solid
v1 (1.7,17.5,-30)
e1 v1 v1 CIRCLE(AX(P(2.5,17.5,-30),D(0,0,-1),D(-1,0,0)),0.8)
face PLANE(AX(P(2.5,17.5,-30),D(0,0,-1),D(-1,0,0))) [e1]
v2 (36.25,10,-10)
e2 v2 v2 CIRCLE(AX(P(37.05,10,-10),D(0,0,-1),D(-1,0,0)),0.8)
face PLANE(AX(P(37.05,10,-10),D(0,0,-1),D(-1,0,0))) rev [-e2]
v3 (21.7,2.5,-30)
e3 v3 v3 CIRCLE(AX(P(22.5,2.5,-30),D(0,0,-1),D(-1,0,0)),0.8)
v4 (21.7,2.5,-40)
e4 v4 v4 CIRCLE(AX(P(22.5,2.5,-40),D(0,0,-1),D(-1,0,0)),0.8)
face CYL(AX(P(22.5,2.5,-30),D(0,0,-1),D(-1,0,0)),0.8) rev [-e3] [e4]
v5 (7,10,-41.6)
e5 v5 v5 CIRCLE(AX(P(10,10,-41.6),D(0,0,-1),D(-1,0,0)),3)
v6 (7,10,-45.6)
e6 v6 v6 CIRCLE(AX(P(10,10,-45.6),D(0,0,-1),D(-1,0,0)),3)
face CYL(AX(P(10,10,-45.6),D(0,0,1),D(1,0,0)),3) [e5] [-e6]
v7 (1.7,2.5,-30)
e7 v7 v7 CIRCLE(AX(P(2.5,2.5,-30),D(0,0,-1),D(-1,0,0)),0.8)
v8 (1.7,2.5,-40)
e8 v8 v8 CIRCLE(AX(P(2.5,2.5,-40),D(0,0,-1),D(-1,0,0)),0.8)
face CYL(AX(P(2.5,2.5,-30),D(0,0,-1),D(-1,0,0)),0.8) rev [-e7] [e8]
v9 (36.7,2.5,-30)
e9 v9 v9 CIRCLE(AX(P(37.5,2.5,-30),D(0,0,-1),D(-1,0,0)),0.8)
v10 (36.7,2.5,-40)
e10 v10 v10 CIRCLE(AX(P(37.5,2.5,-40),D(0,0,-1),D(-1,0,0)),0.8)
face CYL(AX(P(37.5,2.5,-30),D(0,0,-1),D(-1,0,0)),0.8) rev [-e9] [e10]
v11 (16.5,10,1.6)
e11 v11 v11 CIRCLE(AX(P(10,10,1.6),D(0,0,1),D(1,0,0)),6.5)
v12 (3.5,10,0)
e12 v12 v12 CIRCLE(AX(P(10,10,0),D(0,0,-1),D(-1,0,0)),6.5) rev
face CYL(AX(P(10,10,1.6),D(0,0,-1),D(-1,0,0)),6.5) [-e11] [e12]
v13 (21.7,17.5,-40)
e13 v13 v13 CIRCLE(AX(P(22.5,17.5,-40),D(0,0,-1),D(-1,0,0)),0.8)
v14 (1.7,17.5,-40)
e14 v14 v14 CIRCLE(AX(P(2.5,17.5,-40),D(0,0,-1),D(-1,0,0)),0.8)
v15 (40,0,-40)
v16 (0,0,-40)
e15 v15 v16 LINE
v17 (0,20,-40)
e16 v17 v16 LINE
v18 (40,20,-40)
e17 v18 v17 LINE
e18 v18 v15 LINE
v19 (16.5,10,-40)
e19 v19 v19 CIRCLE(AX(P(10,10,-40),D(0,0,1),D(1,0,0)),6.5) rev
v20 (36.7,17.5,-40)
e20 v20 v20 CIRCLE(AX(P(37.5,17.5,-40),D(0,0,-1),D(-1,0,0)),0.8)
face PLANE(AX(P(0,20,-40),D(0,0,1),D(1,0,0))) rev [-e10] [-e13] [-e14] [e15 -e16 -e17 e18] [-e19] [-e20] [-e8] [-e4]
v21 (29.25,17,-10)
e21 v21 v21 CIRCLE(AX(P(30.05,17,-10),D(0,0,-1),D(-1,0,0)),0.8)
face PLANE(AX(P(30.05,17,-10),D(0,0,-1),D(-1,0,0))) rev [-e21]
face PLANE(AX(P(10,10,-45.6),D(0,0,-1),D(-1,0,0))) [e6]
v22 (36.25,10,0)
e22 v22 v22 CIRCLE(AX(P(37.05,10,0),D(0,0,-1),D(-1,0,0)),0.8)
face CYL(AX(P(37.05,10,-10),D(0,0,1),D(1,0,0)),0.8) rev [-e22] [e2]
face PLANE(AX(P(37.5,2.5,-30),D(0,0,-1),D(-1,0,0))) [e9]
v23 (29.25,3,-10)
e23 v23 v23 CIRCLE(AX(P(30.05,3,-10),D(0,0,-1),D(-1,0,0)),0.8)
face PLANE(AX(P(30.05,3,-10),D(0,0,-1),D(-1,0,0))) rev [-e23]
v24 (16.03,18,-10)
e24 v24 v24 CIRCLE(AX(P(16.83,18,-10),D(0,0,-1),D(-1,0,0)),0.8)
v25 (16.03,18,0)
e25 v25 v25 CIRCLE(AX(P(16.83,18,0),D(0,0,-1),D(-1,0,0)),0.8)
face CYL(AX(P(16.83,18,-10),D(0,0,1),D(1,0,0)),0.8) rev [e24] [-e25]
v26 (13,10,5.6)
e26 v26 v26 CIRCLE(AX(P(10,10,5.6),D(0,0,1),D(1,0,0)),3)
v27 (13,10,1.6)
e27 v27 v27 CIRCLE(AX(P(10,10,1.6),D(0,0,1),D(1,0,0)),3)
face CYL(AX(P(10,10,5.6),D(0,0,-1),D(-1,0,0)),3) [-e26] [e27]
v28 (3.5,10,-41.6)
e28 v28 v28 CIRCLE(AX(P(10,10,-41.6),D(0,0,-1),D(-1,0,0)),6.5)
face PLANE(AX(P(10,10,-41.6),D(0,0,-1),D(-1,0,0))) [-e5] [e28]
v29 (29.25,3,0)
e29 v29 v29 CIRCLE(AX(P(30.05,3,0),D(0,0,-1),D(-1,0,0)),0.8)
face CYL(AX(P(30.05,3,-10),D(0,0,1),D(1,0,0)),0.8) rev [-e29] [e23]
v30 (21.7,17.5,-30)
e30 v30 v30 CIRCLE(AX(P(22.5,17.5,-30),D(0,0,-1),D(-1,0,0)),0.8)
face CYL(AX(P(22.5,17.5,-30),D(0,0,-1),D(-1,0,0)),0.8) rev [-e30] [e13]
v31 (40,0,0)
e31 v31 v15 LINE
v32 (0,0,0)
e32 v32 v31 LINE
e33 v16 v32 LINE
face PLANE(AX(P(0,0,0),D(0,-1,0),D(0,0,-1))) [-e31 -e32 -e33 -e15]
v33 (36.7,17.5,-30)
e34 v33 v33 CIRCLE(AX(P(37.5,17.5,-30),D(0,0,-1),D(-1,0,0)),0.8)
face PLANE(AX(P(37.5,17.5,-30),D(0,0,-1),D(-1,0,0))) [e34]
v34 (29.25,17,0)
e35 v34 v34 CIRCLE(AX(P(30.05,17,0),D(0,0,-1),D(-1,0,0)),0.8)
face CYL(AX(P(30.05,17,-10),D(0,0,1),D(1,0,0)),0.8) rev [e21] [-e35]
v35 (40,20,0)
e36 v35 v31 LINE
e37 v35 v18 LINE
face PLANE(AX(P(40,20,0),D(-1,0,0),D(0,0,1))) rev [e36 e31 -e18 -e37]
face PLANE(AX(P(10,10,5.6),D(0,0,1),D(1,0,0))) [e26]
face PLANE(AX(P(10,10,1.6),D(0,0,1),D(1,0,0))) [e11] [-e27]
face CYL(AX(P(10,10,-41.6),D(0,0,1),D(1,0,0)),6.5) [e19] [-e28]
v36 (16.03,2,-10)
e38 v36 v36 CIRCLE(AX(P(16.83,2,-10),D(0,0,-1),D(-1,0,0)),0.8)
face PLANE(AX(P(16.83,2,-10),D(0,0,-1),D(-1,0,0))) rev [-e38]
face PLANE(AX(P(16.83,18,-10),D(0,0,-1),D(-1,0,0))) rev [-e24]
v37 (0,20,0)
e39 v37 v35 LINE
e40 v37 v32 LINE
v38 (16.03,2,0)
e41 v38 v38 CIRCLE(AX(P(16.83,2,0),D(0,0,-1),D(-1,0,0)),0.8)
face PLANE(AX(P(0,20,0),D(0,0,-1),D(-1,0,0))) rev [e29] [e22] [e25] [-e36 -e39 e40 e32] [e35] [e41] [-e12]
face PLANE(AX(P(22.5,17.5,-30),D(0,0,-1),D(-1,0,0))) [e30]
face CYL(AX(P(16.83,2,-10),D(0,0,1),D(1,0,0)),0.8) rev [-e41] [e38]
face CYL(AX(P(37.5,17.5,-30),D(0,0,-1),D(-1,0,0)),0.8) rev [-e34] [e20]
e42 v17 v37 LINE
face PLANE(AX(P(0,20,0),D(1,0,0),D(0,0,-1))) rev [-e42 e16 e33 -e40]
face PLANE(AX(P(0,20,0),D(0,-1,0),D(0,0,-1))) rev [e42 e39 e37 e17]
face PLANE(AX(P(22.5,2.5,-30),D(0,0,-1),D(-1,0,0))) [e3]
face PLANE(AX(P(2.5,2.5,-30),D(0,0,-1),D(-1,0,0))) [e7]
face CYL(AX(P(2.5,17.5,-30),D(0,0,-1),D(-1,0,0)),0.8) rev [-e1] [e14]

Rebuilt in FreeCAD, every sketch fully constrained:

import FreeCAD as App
import Part
import Sketcher
from FreeCAD import Vector
Q = App.Units.Quantity


def add_polygon(sketch, points):
    """Adds a closed chain of lines whose ends are joined by coincident constraints."""
    first, n = sketch.GeometryCount, len(points)
    for a, b in zip(points, points[1:] + points[:1]):
        sketch.addGeometry(Part.LineSegment(App.Vector(*a, 0), App.Vector(*b, 0)), False)
    for i in range(n):
        sketch.addConstraint(Sketcher.Constraint("Coincident", first + i, 2, first + (i + 1) % n, 1))

doc = App.newDocument("Part")
body = doc.addObject("PartDesign::Body", "Body")

# Sketch on XZ plane
sketch1 = body.newObject("Sketcher::SketchObject", "Sketch")
sketch1.AttachmentSupport = (doc.getObject("XZ_Plane"), [""])
sketch1.MapMode = "FlatFace"
add_polygon(sketch1, [(0, -40), (0, 0), (40, 0), (40, -40)])  # lines 0-3
sketch1.addConstraint(Sketcher.Constraint("Vertical", 0))
sketch1.addConstraint(Sketcher.Constraint("Horizontal", 1))
sketch1.addConstraint(Sketcher.Constraint("Vertical", 2))
sketch1.addConstraint(Sketcher.Constraint("Horizontal", 3))
sketch1.addConstraint(Sketcher.Constraint("Coincident", 0, 2, -1, 1))
sketch1.addConstraint(Sketcher.Constraint("Equal", 3, 0))
sketch1.addConstraint(Sketcher.Constraint("DistanceX", 1, 1, 1, 2, Q("40 mm")))
pad1 = body.newObject("PartDesign::Pad", "Pad")
pad1.Profile = sketch1
pad1.Length = 20
pad1.Reversed = True

# Sketch on XY plane
sketch2 = body.newObject("Sketcher::SketchObject", "Sketch001")
sketch2.AttachmentSupport = (doc.getObject("XY_Plane"), [""])
sketch2.MapMode = "FlatFace"
sketch2.addGeometry(Part.Circle(Vector(30.1, 17, 0), Vector(0, 0, 1), 0.8), False)
sketch2.addGeometry(Part.Circle(Vector(37, 10, 0), Vector(0, 0, 1), 0.8), False)
sketch2.addGeometry(Part.Circle(Vector(30.1, 3, 0), Vector(0, 0, 1), 0.8), False)
sketch2.addGeometry(Part.Circle(Vector(16.8, 18, 0), Vector(0, 0, 1), 0.8), False)
sketch2.addGeometry(Part.Circle(Vector(16.8, 2, 0), Vector(0, 0, 1), 0.8), False)
sketch2.addConstraint(Sketcher.Constraint("Equal", 0, 1))
sketch2.addConstraint(Sketcher.Constraint("Equal", 1, 2))
sketch2.addConstraint(Sketcher.Constraint("Equal", 2, 3))
sketch2.addConstraint(Sketcher.Constraint("Equal", 3, 4))
sketch2.addConstraint(Sketcher.Constraint("Vertical", 0, 3, 2, 3))
sketch2.addConstraint(Sketcher.Constraint("Vertical", 3, 3, 4, 3))
sketch2.addConstraint(Sketcher.Constraint("Diameter", 0, Q("1.6 mm")))
sketch2.addConstraint(Sketcher.Constraint("DistanceY", -1, 1, 0, 3, Q("17 mm")))
sketch2.addConstraint(Sketcher.Constraint("DistanceY", -1, 1, 1, 3, Q("10 mm")))
sketch2.addConstraint(Sketcher.Constraint("DistanceY", -1, 1, 2, 3, Q("3 mm")))
sketch2.addConstraint(Sketcher.Constraint("DistanceY", -1, 1, 3, 3, Q("18 mm")))
sketch2.addConstraint(Sketcher.Constraint("DistanceY", -1, 1, 4, 3, Q("2 mm")))
sketch2.addConstraint(Sketcher.Constraint("DistanceX", 0, 3, 1, 3, Q("7 mm")))
sketch2.addConstraint(Sketcher.Constraint("DistanceX", -1, 1, 0, 3, Q("30.05 mm")))
sketch2.addConstraint(Sketcher.Constraint("DistanceX", -1, 1, 3, 3, Q("16.83 mm")))
pocket1 = body.newObject("PartDesign::Pocket", "Pocket")
pocket1.Profile = sketch2
pocket1.Length = 10

# Sketch on XY plane
sketch3 = body.newObject("Sketcher::SketchObject", "Sketch002")
sketch3.AttachmentSupport = (doc.getObject("XY_Plane"), [""])
sketch3.MapMode = "FlatFace"
sketch3.AttachmentOffset = App.Placement(Vector(0, 0, -40), App.Rotation())
sketch3.addGeometry(Part.Circle(Vector(37.5, 17.5, 0), Vector(0, 0, 1), 0.8), False)
sketch3.addGeometry(Part.Circle(Vector(37.5, 2.5, 0), Vector(0, 0, 1), 0.8), False)
sketch3.addGeometry(Part.Circle(Vector(22.5, 17.5, 0), Vector(0, 0, 1), 0.8), False)
sketch3.addGeometry(Part.Circle(Vector(22.5, 2.5, 0), Vector(0, 0, 1), 0.8), False)
sketch3.addGeometry(Part.Circle(Vector(2.5, 17.5, 0), Vector(0, 0, 1), 0.8), False)
sketch3.addGeometry(Part.Circle(Vector(2.5, 2.5, 0), Vector(0, 0, 1), 0.8), False)
sketch3.addConstraint(Sketcher.Constraint("Equal", 0, 1))
sketch3.addConstraint(Sketcher.Constraint("Equal", 1, 2))
sketch3.addConstraint(Sketcher.Constraint("Equal", 2, 3))
sketch3.addConstraint(Sketcher.Constraint("Equal", 3, 4))
sketch3.addConstraint(Sketcher.Constraint("Equal", 4, 5))
sketch3.addConstraint(Sketcher.Constraint("Horizontal", 0, 3, 2, 3))
sketch3.addConstraint(Sketcher.Constraint("Horizontal", 1, 3, 3, 3))
sketch3.addConstraint(Sketcher.Constraint("Horizontal", 2, 3, 4, 3))
sketch3.addConstraint(Sketcher.Constraint("Horizontal", 3, 3, 5, 3))
sketch3.addConstraint(Sketcher.Constraint("Vertical", 0, 3, 1, 3))
sketch3.addConstraint(Sketcher.Constraint("Vertical", 2, 3, 3, 3))
sketch3.addConstraint(Sketcher.Constraint("Vertical", 4, 3, 5, 3))
sketch3.addConstraint(Sketcher.Constraint("Diameter", 0, Q("1.6 mm")))
sketch3.addConstraint(Sketcher.Constraint("DistanceY", 1, 3, 0, 3, Q("15 mm")))
sketch3.addConstraint(Sketcher.Constraint("DistanceX", 2, 3, 0, 3, Q("15 mm")))
sketch3.addConstraint(Sketcher.Constraint("DistanceX", 4, 3, 2, 3, Q("20 mm")))
sketch3.addConstraint(Sketcher.Constraint("DistanceX", -1, 1, 0, 3, Q("37.5 mm")))
sketch3.addConstraint(Sketcher.Constraint("DistanceY", -1, 1, 0, 3, Q("17.5 mm")))
pocket2 = body.newObject("PartDesign::Pocket", "Pocket001")
pocket2.Profile = sketch3
pocket2.Length = 10
pocket2.Reversed = True

# Sketch on XY plane
sketch4 = body.newObject("Sketcher::SketchObject", "Sketch003")
sketch4.AttachmentSupport = (doc.getObject("XY_Plane"), [""])
sketch4.MapMode = "FlatFace"
sketch4.addGeometry(Part.Circle(Vector(10, 10, 0), Vector(0, 0, 1), 6), False)
sketch4.addConstraint(Sketcher.Constraint("Diameter", 0, Q("13 mm")))
sketch4.addConstraint(Sketcher.Constraint("DistanceX", -1, 1, 0, 3, Q("10 mm")))
sketch4.addConstraint(Sketcher.Constraint("DistanceY", -1, 1, 0, 3, Q("10 mm")))
pad2 = body.newObject("PartDesign::Pad", "Pad001")
pad2.Profile = sketch4
pad2.Length = 1.6

# Sketch on XY plane
sketch5 = body.newObject("Sketcher::SketchObject", "Sketch004")
sketch5.AttachmentSupport = (doc.getObject("XY_Plane"), [""])
sketch5.MapMode = "FlatFace"
sketch5.AttachmentOffset = App.Placement(Vector(0, 0, 1.6), App.Rotation())
sketch5.addGeometry(Part.Circle(Vector(10, 10, 0), Vector(0, 0, 1), 3), False)
sketch5.addConstraint(Sketcher.Constraint("Diameter", 0, Q("6 mm")))
sketch5.addConstraint(Sketcher.Constraint("DistanceX", -1, 1, 0, 3, Q("10 mm")))
sketch5.addConstraint(Sketcher.Constraint("DistanceY", -1, 1, 0, 3, Q("10 mm")))
pad3 = body.newObject("PartDesign::Pad", "Pad002")
pad3.Profile = sketch5
pad3.Length = 4

# Sketch on XY plane
sketch6 = body.newObject("Sketcher::SketchObject", "Sketch005")
sketch6.AttachmentSupport = (doc.getObject("XY_Plane"), [""])
sketch6.MapMode = "FlatFace"
sketch6.AttachmentOffset = App.Placement(Vector(0, 0, -41.6), App.Rotation())
sketch6.addGeometry(Part.Circle(Vector(10, 10, 0), Vector(0, 0, 1), 6), False)
sketch6.addConstraint(Sketcher.Constraint("Diameter", 0, Q("13 mm")))
sketch6.addConstraint(Sketcher.Constraint("DistanceX", -1, 1, 0, 3, Q("10 mm")))
sketch6.addConstraint(Sketcher.Constraint("DistanceY", -1, 1, 0, 3, Q("10 mm")))
pad4 = body.newObject("PartDesign::Pad", "Pad003")
pad4.Profile = sketch6
pad4.Length = 1.6

# Sketch on XY plane
sketch7 = body.newObject("Sketcher::SketchObject", "Sketch006")
sketch7.AttachmentSupport = (doc.getObject("XY_Plane"), [""])
sketch7.MapMode = "FlatFace"
sketch7.AttachmentOffset = App.Placement(Vector(0, 0, -45.6), App.Rotation())
sketch7.addGeometry(Part.Circle(Vector(10, 10, 0), Vector(0, 0, 1), 3), False)
sketch7.addConstraint(Sketcher.Constraint("Diameter", 0, Q("6 mm")))
sketch7.addConstraint(Sketcher.Constraint("DistanceX", -1, 1, 0, 3, Q("10 mm")))
sketch7.addConstraint(Sketcher.Constraint("DistanceY", -1, 1, 0, 3, Q("10 mm")))
pad5 = body.newObject("PartDesign::Pad", "Pad004")
pad5.Profile = sketch7
pad5.Length = 4

doc.recompute()
